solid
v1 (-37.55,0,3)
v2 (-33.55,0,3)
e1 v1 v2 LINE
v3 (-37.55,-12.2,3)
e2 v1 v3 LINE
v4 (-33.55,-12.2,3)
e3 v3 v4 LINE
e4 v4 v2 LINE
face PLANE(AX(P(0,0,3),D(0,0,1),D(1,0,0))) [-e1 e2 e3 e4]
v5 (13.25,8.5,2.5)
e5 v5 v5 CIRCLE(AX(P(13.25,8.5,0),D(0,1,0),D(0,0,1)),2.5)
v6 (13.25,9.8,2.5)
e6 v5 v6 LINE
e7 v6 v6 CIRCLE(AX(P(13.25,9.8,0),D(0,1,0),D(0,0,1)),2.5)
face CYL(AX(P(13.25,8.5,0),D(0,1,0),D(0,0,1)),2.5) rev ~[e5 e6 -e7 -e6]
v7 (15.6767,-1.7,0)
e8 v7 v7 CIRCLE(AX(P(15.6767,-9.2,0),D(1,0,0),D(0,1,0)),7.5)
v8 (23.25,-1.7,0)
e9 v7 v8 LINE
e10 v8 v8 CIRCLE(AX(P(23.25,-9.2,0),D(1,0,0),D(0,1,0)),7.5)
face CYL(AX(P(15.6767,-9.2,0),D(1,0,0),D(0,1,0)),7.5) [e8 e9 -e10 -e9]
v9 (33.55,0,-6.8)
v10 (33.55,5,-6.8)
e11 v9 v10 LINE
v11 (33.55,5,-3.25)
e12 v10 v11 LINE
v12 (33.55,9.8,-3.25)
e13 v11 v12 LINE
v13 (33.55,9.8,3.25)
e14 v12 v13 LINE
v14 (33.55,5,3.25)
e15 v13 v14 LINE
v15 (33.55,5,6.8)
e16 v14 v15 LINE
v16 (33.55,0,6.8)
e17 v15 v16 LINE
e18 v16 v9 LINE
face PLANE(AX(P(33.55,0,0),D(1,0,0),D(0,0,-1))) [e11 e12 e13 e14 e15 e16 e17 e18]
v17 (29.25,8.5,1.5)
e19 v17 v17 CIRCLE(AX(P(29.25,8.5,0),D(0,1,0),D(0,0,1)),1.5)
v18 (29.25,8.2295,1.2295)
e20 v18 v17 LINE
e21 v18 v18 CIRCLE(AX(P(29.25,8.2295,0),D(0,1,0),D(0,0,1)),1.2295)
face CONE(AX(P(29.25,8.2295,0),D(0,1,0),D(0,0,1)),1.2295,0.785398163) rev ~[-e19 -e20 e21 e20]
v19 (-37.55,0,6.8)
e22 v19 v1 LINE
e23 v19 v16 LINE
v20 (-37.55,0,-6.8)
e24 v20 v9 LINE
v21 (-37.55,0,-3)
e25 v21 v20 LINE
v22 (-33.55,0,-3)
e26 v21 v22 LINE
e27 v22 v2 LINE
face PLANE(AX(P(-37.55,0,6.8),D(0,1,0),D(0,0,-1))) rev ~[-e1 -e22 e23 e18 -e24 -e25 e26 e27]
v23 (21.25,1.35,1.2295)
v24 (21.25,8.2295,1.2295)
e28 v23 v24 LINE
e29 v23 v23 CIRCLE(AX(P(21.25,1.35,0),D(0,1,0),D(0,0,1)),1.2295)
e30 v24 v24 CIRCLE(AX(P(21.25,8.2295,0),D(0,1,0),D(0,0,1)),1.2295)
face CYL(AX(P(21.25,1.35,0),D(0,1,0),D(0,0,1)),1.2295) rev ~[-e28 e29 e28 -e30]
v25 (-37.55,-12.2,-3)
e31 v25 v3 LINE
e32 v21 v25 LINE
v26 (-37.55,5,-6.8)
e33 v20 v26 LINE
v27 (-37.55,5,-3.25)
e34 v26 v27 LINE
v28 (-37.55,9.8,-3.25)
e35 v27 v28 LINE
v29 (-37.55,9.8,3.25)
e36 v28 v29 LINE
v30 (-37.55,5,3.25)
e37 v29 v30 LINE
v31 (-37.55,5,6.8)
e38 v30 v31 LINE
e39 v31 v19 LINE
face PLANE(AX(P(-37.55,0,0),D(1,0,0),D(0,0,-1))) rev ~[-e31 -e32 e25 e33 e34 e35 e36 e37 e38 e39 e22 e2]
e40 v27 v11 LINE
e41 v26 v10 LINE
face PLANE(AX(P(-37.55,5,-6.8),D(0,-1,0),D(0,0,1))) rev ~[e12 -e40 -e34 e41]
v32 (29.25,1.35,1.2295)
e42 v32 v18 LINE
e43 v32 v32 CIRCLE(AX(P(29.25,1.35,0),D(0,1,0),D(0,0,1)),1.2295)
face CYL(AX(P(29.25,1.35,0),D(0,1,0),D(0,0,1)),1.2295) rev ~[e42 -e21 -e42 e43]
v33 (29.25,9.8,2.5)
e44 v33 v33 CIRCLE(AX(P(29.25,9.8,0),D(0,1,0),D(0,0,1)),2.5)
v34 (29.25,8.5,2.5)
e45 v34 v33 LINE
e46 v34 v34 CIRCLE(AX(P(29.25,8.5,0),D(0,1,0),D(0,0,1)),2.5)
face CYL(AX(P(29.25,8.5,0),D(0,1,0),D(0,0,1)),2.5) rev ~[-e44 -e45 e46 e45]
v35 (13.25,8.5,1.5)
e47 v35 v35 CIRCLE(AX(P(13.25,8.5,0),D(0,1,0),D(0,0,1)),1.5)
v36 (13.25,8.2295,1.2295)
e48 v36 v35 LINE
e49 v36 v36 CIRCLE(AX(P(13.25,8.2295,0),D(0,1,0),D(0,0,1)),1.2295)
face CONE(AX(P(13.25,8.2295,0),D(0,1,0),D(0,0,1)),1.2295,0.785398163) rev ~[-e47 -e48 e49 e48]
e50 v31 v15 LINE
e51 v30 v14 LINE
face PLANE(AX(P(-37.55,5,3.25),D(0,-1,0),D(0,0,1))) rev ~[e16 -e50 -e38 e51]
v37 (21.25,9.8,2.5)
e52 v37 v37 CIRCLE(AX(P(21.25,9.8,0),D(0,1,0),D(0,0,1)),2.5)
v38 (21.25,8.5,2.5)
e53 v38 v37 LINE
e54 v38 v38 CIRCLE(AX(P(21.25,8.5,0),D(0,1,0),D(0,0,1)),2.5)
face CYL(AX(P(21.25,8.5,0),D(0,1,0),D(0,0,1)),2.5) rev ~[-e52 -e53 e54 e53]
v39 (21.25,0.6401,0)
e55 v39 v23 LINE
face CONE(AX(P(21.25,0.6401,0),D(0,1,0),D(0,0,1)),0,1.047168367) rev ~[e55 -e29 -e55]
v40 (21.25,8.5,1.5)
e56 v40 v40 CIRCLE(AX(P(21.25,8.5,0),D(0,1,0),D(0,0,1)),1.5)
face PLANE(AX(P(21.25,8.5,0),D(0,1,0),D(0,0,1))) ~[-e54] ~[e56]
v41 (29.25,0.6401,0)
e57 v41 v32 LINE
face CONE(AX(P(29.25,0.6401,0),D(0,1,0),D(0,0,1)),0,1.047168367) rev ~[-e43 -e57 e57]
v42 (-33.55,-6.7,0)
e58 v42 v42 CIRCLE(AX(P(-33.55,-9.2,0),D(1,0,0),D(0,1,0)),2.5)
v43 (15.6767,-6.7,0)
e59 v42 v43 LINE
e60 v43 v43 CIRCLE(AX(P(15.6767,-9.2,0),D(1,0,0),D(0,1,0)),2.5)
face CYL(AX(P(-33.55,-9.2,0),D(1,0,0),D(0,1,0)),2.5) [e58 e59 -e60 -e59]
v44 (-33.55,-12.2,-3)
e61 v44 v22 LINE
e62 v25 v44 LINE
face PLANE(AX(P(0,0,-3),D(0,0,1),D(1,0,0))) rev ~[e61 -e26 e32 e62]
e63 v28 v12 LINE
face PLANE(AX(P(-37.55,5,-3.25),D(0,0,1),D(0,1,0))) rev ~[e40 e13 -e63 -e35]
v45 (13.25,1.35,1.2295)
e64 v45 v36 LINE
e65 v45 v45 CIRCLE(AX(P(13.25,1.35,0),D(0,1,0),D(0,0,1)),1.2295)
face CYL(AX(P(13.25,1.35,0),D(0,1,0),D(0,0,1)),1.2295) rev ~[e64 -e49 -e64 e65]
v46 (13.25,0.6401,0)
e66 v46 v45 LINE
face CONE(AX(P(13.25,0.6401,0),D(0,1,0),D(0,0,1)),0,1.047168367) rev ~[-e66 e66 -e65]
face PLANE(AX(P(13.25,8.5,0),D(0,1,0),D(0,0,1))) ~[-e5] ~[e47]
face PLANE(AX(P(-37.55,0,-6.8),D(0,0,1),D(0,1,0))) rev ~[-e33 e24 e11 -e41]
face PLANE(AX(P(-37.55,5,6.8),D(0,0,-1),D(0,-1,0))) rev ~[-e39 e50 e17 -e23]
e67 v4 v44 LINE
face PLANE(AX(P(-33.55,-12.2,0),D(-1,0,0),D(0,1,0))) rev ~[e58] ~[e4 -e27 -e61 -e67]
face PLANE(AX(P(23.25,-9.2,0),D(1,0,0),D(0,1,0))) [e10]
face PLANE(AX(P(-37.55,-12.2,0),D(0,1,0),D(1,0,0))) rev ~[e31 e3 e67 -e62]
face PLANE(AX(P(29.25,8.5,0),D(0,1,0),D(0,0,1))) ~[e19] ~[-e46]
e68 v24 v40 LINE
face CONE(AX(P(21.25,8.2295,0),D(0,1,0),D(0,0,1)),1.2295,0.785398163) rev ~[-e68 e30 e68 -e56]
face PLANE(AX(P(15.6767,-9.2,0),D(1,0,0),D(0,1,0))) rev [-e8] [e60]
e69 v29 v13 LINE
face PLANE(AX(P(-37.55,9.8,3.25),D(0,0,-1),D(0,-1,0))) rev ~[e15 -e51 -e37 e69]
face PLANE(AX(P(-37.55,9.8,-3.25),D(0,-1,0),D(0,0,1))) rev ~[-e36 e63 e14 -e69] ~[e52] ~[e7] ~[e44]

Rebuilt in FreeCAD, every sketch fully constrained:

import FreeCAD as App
import Part
import Sketcher
from FreeCAD import Vector
Q = App.Units.Quantity


def add_polygon(sketch, points):
    """Adds a closed chain of lines whose ends are joined by coincident constraints."""
    first, n = sketch.GeometryCount, len(points)
    for a, b in zip(points, points[1:] + points[:1]):
        sketch.addGeometry(Part.LineSegment(App.Vector(*a, 0), App.Vector(*b, 0)), False)
    for i in range(n):
        sketch.addConstraint(Sketcher.Constraint("Coincident", first + i, 2, first + (i + 1) % n, 1))

doc = App.newDocument("Part")
params = doc.addObject("Spreadsheet::Sheet", "Params")
for row, (alias, value) in enumerate([
    ("sketch1_width", "5 mm"),
    ("sketch1_width2", "4.8 mm"),
    ("sketch1_height", "13.6 mm"),
    ("sketch1_height2", "6.5 mm"),
    ("pad1_length", "71.1 mm"),
    ("sketch2_width", "4 mm"),
    ("sketch2_height", "19.2 mm"),
    ("pad2_length", "6 mm"),
    ("sketch3_height", "5 mm"),
    ("sketch3_width", "56.8 mm"),
    ("sketch3_height2", "7.5 mm"),
    ("revolution_angle", "360 deg"),
    ("sketch4_height", "1 mm"),
    ("sketch4_width", "1.3 mm"),
    ("sketch4_height2", "2.5 mm"),
    ("sketch4_width2", "9.16 mm"),
    ("groove_angle", "360 deg"),
    ("linearpattern_pitch", "8 mm"),
], start=1):
    params.set(f"A{row}", alias)
    params.set(f"B{row}", "=" + value)
    params.setAlias(f"B{row}", alias)

body = doc.addObject("PartDesign::Body", "Body")

sketch1 = body.newObject("Sketcher::SketchObject", "Sketch")
sketch1.AttachmentSupport = (doc.getObject("YZ_Plane"), [""])
sketch1.MapMode = "FlatFace"
sketch1.AttachmentOffset = App.Placement(Vector(0, 0, -37.55), App.Rotation())
add_polygon(sketch1, [(5, 3.2), (5, 6.8), (0, 6.8), (0, -6.8), (5, -6.8), (5, -3.2), (9.8, -3.2), (9.8, 3.2)])
sketch1.addConstraint([
    Sketcher.Constraint("Vertical", 0),
    Sketcher.Constraint("Horizontal", 1),
    Sketcher.Constraint("Vertical", 2),
    Sketcher.Constraint("Horizontal", 3),
    Sketcher.Constraint("Vertical", 4),
    Sketcher.Constraint("Horizontal", 5),
    Sketcher.Constraint("Vertical", 6),
    Sketcher.Constraint("Horizontal", 7),
    Sketcher.Constraint("Symmetric", 1, 2, 2, 2, -1, 1),
    Sketcher.Constraint("Symmetric", 4, 2, 7, 2, -1),
    Sketcher.Constraint("DistanceX", 1, 2, 1, 1, 5.0),
    Sketcher.Constraint("DistanceX", 5, 1, 5, 2, 4.8),
    Sketcher.Constraint("DistanceY", 2, 2, 2, 1, 13.6),
    Sketcher.Constraint("DistanceY", 6, 1, 6, 2, 6.5),
])
sketch1.setExpression("Constraints[18]", "Params.sketch1_width")
sketch1.setExpression("Constraints[19]", "Params.sketch1_width2")
sketch1.setExpression("Constraints[20]", "Params.sketch1_height")
sketch1.setExpression("Constraints[21]", "Params.sketch1_height2")
pad1 = body.newObject("PartDesign::Pad", "Pad")
pad1.Profile = sketch1
pad1.setExpression("Length", "Params.pad1_length")

sketch2 = body.newObject("Sketcher::SketchObject", "Sketch001")
sketch2.AttachmentSupport = (doc.getObject("XY_Plane"), [""])
sketch2.MapMode = "FlatFace"
add_polygon(sketch2, [(-33.5, 7), (-37.5, 7), (-37.5, -12.2), (-33.5, -12.2)])
sketch2.addConstraint([
    Sketcher.Constraint("Horizontal", 0),
    Sketcher.Constraint("Vertical", 1),
    Sketcher.Constraint("Horizontal", 2),
    Sketcher.Constraint("Vertical", 3),
    Sketcher.Constraint("DistanceX", 0, 2, 0, 1, 4.0),
    Sketcher.Constraint("DistanceY", 1, 2, 1, 1, 19.2),
    Sketcher.Constraint("DistanceY", -1, 1, 0, 2, 7.0),
    Sketcher.Constraint("DistanceX", 0, 2, -1, 1, 37.55),
])
sketch2.setExpression("Constraints[8]", "Params.sketch2_width")
sketch2.setExpression("Constraints[9]", "Params.sketch2_height")
pad2 = body.newObject("PartDesign::Pad", "Pad001")
pad2.Profile = sketch2
pad2.setExpression("Length", "Params.pad2_length")
pad2.Midplane = True

sketch3 = body.newObject("Sketcher::SketchObject", "Sketch002")
sketch3.AttachmentSupport = (doc.getObject("XY_Plane"), [""])
sketch3.MapMode = "FlatFace"
add_polygon(sketch3, [(-33.5, -9.2), (23.2, -9.2), (23.2, -1.7), (15.7, -1.7), (15.7, -6.7), (-33.5, -6.7)])
sketch3.addGeometry(Part.LineSegment(Vector(-33.5, -9.2, 0), Vector(23.2, -9.2, 0)), True)
sketch3.addConstraint([
    Sketcher.Constraint("Horizontal", 0),
    Sketcher.Constraint("Vertical", 1),
    Sketcher.Constraint("Horizontal", 2),
    Sketcher.Constraint("Vertical", 3),
    Sketcher.Constraint("Horizontal", 4),
    Sketcher.Constraint("Vertical", 5),
    Sketcher.Constraint("Horizontal", 6),
    Sketcher.Constraint("Coincident", 6, 1, 5, 2),
    Sketcher.Constraint("Vertical", 1, 2, 6, 2),
    Sketcher.Constraint("DistanceY", 3, 2, 3, 1, 5.0),
    Sketcher.Constraint("DistanceX", 0, 1, 0, 2, 56.8),
    Sketcher.Constraint("DistanceY", 1, 1, 1, 2, 7.5),
    Sketcher.Constraint("DistanceY", 0, 2, -1, 1, 9.2),
    Sketcher.Constraint("DistanceX", -1, 1, 0, 2, 23.25),
    Sketcher.Constraint("DistanceX", 2, 2, 2, 1, 7.5733),
])
sketch3.setExpression("Constraints[15]", "Params.sketch3_height")
sketch3.setExpression("Constraints[16]", "Params.sketch3_width")
sketch3.setExpression("Constraints[17]", "Params.sketch3_height2")
revolution = body.newObject("PartDesign::Revolution", "Revolution")
revolution.Profile = sketch3
revolution.ReferenceAxis = (sketch3, ["Axis0"])
revolution.setExpression("Angle", "Params.revolution_angle")

sketch4 = body.newObject("Sketcher::SketchObject", "Sketch003")
sketch4.AttachmentSupport = (doc.getObject("YZ_Plane"), [""])
sketch4.MapMode = "FlatFace"
sketch4.AttachmentOffset = App.Placement(Vector(0, 0, 29.25), App.Rotation())
add_polygon(sketch4, [(0.64, 0), (9.8, 0), (9.8, 2.5), (8.5, 2.5), (8.5, 1.5), (8.23, 1.23), (1.35, 1.23)])
sketch4.addConstraint([
    Sketcher.Constraint("Horizontal", 0),
    Sketcher.Constraint("Vertical", 1),
    Sketcher.Constraint("Horizontal", 2),
    Sketcher.Constraint("Vertical", 3),
    Sketcher.Constraint("Horizontal", 5),
    Sketcher.Constraint("PointOnObject", 0, 2, -1),
    Sketcher.Constraint("DistanceY", 3, 2, 3, 1, 1.0),
    Sketcher.Constraint("Angle", 4, Q("-135 deg")),
    Sketcher.Constraint("DistanceX", 2, 2, 2, 1, 1.3),
    Sketcher.Constraint("DistanceY", 1, 1, 1, 2, 2.5),
    Sketcher.Constraint("DistanceX", 0, 1, 0, 2, 9.16),
    Sketcher.Constraint("DistanceX", -1, 1, 0, 2, 9.8),
    Sketcher.Constraint("DistanceX", -1, 1, 5, 2, 1.35),
    Sketcher.Constraint("DistanceX", 5, 2, 5, 1, 6.8795),
])
sketch4.setExpression("Constraints[13]", "Params.sketch4_height")
sketch4.setExpression("Constraints[15]", "Params.sketch4_width")
sketch4.setExpression("Constraints[16]", "Params.sketch4_height2")
sketch4.setExpression("Constraints[17]", "Params.sketch4_width2")
groove = body.newObject("PartDesign::Groove", "Groove")
groove.Profile = sketch4
groove.ReferenceAxis = (sketch4, ["H_Axis"])
groove.setExpression("Angle", "Params.groove_angle")
doc.recompute()

linearpattern = body.newObject("PartDesign::LinearPattern", "LinearPattern")
linearpattern.Originals = [groove]
linearpattern.Direction = (doc.getObject("X_Axis"), [""])
linearpattern.Mode = "offset"
linearpattern.setExpression("Offset", "Params.linearpattern_pitch")
linearpattern.Occurrences = 3
linearpattern.Reversed = True
body.Tip = linearpattern

doc.recompute()
